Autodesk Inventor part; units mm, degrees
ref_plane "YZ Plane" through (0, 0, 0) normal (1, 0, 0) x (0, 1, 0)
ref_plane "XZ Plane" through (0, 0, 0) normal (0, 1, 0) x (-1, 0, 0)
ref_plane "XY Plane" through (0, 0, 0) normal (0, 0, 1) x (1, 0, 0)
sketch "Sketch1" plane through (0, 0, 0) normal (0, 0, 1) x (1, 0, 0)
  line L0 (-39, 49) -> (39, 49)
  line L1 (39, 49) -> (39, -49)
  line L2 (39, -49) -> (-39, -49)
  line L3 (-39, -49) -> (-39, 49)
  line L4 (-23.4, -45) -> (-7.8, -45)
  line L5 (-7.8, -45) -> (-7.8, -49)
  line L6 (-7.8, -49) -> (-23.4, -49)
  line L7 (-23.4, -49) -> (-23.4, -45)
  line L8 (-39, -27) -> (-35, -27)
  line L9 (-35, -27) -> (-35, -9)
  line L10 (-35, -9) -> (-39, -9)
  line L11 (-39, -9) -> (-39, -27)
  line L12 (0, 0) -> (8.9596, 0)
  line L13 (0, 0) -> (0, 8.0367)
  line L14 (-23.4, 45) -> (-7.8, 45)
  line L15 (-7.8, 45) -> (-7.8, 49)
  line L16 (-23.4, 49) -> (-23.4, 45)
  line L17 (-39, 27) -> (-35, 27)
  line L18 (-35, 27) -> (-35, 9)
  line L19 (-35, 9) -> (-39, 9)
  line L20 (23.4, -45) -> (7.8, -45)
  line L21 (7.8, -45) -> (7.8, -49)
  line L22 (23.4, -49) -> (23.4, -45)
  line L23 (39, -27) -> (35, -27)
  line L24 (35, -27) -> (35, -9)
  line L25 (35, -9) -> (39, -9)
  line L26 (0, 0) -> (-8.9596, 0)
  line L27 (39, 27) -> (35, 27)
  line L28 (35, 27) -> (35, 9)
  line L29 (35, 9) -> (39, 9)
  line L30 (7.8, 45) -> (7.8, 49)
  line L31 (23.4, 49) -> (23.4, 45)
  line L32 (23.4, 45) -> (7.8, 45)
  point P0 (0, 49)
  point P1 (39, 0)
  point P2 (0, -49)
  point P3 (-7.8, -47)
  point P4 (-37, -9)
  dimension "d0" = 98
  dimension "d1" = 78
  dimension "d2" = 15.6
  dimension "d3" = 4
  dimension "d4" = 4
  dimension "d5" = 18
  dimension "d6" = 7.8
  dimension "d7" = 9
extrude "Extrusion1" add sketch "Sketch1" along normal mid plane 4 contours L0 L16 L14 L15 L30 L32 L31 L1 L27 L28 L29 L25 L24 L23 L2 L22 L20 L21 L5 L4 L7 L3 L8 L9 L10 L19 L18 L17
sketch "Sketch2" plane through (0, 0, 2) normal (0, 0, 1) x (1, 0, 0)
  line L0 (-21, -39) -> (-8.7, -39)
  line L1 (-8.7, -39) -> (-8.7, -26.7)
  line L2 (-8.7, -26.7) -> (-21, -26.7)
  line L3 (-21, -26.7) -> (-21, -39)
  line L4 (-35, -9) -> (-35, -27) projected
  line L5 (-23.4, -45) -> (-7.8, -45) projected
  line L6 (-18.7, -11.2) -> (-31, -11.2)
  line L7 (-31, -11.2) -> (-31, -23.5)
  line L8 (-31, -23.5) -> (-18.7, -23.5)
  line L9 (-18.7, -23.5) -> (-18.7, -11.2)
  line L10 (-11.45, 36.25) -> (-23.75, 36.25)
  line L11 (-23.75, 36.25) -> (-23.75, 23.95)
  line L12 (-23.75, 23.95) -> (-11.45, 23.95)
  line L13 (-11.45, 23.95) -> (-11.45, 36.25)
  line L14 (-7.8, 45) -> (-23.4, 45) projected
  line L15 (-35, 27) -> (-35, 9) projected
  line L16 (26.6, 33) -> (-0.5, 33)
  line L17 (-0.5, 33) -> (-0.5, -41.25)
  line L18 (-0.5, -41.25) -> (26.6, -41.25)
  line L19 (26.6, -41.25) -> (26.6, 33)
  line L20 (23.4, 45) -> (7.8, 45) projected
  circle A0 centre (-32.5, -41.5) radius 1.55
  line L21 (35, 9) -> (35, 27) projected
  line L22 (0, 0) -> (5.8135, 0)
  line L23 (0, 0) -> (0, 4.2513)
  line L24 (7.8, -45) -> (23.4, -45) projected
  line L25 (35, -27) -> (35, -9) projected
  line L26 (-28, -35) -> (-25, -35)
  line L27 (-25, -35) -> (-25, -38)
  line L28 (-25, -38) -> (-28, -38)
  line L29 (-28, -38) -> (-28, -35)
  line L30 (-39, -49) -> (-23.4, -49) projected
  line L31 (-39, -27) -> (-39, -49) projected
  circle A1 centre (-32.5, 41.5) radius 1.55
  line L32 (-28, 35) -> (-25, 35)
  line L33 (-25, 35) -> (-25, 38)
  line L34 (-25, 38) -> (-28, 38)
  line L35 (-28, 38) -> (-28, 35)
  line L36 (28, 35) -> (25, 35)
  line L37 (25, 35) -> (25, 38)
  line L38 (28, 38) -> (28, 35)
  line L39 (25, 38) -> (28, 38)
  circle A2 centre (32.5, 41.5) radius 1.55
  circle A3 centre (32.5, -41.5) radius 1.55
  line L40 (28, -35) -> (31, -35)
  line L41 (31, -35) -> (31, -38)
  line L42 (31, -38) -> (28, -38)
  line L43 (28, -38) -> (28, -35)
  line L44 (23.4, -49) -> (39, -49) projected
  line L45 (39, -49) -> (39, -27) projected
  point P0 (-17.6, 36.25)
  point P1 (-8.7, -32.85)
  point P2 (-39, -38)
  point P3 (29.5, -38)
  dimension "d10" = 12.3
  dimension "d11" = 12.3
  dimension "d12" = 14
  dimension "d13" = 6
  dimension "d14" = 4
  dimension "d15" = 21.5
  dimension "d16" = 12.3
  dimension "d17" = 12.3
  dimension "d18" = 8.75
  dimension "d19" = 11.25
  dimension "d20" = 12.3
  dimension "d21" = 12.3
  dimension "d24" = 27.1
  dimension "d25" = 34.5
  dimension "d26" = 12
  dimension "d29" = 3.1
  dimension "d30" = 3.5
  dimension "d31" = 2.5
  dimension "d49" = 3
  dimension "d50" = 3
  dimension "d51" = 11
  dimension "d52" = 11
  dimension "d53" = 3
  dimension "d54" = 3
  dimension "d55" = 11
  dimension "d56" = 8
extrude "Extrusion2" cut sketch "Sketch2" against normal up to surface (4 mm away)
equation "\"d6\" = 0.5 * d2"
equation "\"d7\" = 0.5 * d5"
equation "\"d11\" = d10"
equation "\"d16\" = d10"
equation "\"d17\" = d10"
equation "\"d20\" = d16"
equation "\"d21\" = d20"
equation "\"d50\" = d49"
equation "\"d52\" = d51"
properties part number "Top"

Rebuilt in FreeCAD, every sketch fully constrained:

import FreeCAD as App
import Part
import Sketcher
from FreeCAD import Vector

doc = App.newDocument("Part")
params = doc.addObject("Spreadsheet::Sheet", "Params")
for row, (alias, value) in enumerate([
    ("sketch1_width", "4 mm"),
    ("sketch1_height", "18 mm"),
    ("sketch1_width2", "15.6 mm"),
    ("pad1_length", "4 mm"),
    ("sketch2_diameter", "3.1 mm"),
    ("sketch2_width", "3 mm"),
    ("sketch2_width2", "12.3 mm"),
    ("sketch2_width3", "27.1 mm"),
    ("sketch2_height", "74.25 mm"),
    ("pocket1_length", "4 mm"),
], start=1):
    params.set(f"A{row}", alias)
    params.set(f"B{row}", "=" + value)
    params.setAlias(f"B{row}", alias)

body = doc.addObject("PartDesign::Body", "Body")

# Sketch on XY plane
sketch1 = body.newObject("Sketcher::SketchObject", "Sketch")
sketch1.AttachmentSupport = (doc.getObject("XY_Plane"), [""])
sketch1.MapMode = "FlatFace"
sketch1.addGeometry(Part.LineSegment(Vector(-23.4, 49, 0), Vector(-39, 49, 0)), False)
sketch1.addGeometry(Part.LineSegment(Vector(-39, 49, 0), Vector(-39, 27, 0)), False)
sketch1.addGeometry(Part.LineSegment(Vector(-39, 27, 0), Vector(-35, 27, 0)), False)
sketch1.addGeometry(Part.LineSegment(Vector(-35, 27, 0), Vector(-35, 9, 0)), False)
sketch1.addGeometry(Part.LineSegment(Vector(-35, 9, 0), Vector(-39, 9, 0)), False)
sketch1.addGeometry(Part.LineSegment(Vector(-39, 9, 0), Vector(-39, -9, 0)), False)
sketch1.addGeometry(Part.LineSegment(Vector(-39, -9, 0), Vector(-35, -9, 0)), False)
sketch1.addGeometry(Part.LineSegment(Vector(-35, -9, 0), Vector(-35, -27, 0)), False)
sketch1.addGeometry(Part.LineSegment(Vector(-35, -27, 0), Vector(-39, -27, 0)), False)
sketch1.addGeometry(Part.LineSegment(Vector(-39, -27, 0), Vector(-39, -49, 0)), False)
sketch1.addGeometry(Part.LineSegment(Vector(-39, -49, 0), Vector(-23.4, -49, 0)), False)
sketch1.addGeometry(Part.LineSegment(Vector(-23.4, -49, 0), Vector(-23.4, -45, 0)), False)
sketch1.addGeometry(Part.LineSegment(Vector(-23.4, -45, 0), Vector(-7.8, -45, 0)), False)
sketch1.addGeometry(Part.LineSegment(Vector(-7.8, -45, 0), Vector(-7.8, -49, 0)), False)
sketch1.addGeometry(Part.LineSegment(Vector(-7.8, -49, 0), Vector(7.8, -49, 0)), False)
sketch1.addGeometry(Part.LineSegment(Vector(7.8, -49, 0), Vector(7.8, -45, 0)), False)
sketch1.addGeometry(Part.LineSegment(Vector(7.8, -45, 0), Vector(23.4, -45, 0)), False)
sketch1.addGeometry(Part.LineSegment(Vector(23.4, -45, 0), Vector(23.4, -49, 0)), False)
sketch1.addGeometry(Part.LineSegment(Vector(23.4, -49, 0), Vector(39, -49, 0)), False)
sketch1.addGeometry(Part.LineSegment(Vector(39, -49, 0), Vector(39, -27, 0)), False)
sketch1.addGeometry(Part.LineSegment(Vector(39, -27, 0), Vector(35, -27, 0)), False)
sketch1.addGeometry(Part.LineSegment(Vector(35, -27, 0), Vector(35, -9, 0)), False)
sketch1.addGeometry(Part.LineSegment(Vector(35, -9, 0), Vector(39, -9, 0)), False)
sketch1.addGeometry(Part.LineSegment(Vector(39, -9, 0), Vector(39, 9, 0)), False)
sketch1.addGeometry(Part.LineSegment(Vector(39, 9, 0), Vector(35, 9, 0)), False)
sketch1.addGeometry(Part.LineSegment(Vector(35, 9, 0), Vector(35, 27, 0)), False)
sketch1.addGeometry(Part.LineSegment(Vector(35, 27, 0), Vector(39, 27, 0)), False)
sketch1.addGeometry(Part.LineSegment(Vector(39, 27, 0), Vector(39, 49, 0)), False)
sketch1.addGeometry(Part.LineSegment(Vector(39, 49, 0), Vector(23.4, 49, 0)), False)
sketch1.addGeometry(Part.LineSegment(Vector(23.4, 49, 0), Vector(23.4, 45, 0)), False)
sketch1.addGeometry(Part.LineSegment(Vector(23.4, 45, 0), Vector(7.8, 45, 0)), False)
sketch1.addGeometry(Part.LineSegment(Vector(7.8, 45, 0), Vector(7.8, 49, 0)), False)
sketch1.addGeometry(Part.LineSegment(Vector(7.8, 49, 0), Vector(-7.8, 49, 0)), False)
sketch1.addGeometry(Part.LineSegment(Vector(-7.8, 49, 0), Vector(-7.8, 45, 0)), False)
sketch1.addGeometry(Part.LineSegment(Vector(-7.8, 45, 0), Vector(-23.4, 45, 0)), False)
sketch1.addGeometry(Part.LineSegment(Vector(-23.4, 45, 0), Vector(-23.4, 49, 0)), False)
sketch1.addConstraint(Sketcher.Constraint("Coincident", 0, 2, 1, 1))
sketch1.addConstraint(Sketcher.Constraint("Coincident", 1, 2, 2, 1))
sketch1.addConstraint(Sketcher.Constraint("Coincident", 2, 2, 3, 1))
sketch1.addConstraint(Sketcher.Constraint("Coincident", 3, 2, 4, 1))
sketch1.addConstraint(Sketcher.Constraint("Coincident", 4, 2, 5, 1))
sketch1.addConstraint(Sketcher.Constraint("Coincident", 5, 2, 6, 1))
sketch1.addConstraint(Sketcher.Constraint("Coincident", 6, 2, 7, 1))
sketch1.addConstraint(Sketcher.Constraint("Coincident", 7, 2, 8, 1))
sketch1.addConstraint(Sketcher.Constraint("Coincident", 8, 2, 9, 1))
sketch1.addConstraint(Sketcher.Constraint("Coincident", 9, 2, 10, 1))
sketch1.addConstraint(Sketcher.Constraint("Coincident", 10, 2, 11, 1))
sketch1.addConstraint(Sketcher.Constraint("Coincident", 11, 2, 12, 1))
sketch1.addConstraint(Sketcher.Constraint("Coincident", 12, 2, 13, 1))
sketch1.addConstraint(Sketcher.Constraint("Coincident", 13, 2, 14, 1))
sketch1.addConstraint(Sketcher.Constraint("Coincident", 14, 2, 15, 1))
sketch1.addConstraint(Sketcher.Constraint("Coincident", 15, 2, 16, 1))
sketch1.addConstraint(Sketcher.Constraint("Coincident", 16, 2, 17, 1))
sketch1.addConstraint(Sketcher.Constraint("Coincident", 17, 2, 18, 1))
sketch1.addConstraint(Sketcher.Constraint("Coincident", 18, 2, 19, 1))
sketch1.addConstraint(Sketcher.Constraint("Coincident", 19, 2, 20, 1))
sketch1.addConstraint(Sketcher.Constraint("Coincident", 20, 2, 21, 1))
sketch1.addConstraint(Sketcher.Constraint("Coincident", 21, 2, 22, 1))
sketch1.addConstraint(Sketcher.Constraint("Coincident", 22, 2, 23, 1))
sketch1.addConstraint(Sketcher.Constraint("Coincident", 23, 2, 24, 1))
sketch1.addConstraint(Sketcher.Constraint("Coincident", 24, 2, 25, 1))
sketch1.addConstraint(Sketcher.Constraint("Coincident", 25, 2, 26, 1))
sketch1.addConstraint(Sketcher.Constraint("Coincident", 26, 2, 27, 1))
sketch1.addConstraint(Sketcher.Constraint("Coincident", 27, 2, 28, 1))
sketch1.addConstraint(Sketcher.Constraint("Coincident", 28, 2, 29, 1))
sketch1.addConstraint(Sketcher.Constraint("Coincident", 29, 2, 30, 1))
sketch1.addConstraint(Sketcher.Constraint("Coincident", 30, 2, 31, 1))
sketch1.addConstraint(Sketcher.Constraint("Coincident", 31, 2, 32, 1))
sketch1.addConstraint(Sketcher.Constraint("Coincident", 32, 2, 33, 1))
sketch1.addConstraint(Sketcher.Constraint("Coincident", 33, 2, 34, 1))
sketch1.addConstraint(Sketcher.Constraint("Coincident", 34, 2, 35, 1))
sketch1.addConstraint(Sketcher.Constraint("Coincident", 35, 2, 0, 1))
sketch1.addConstraint(Sketcher.Constraint("Horizontal", 0))
sketch1.addConstraint(Sketcher.Constraint("Vertical", 1))
sketch1.addConstraint(Sketcher.Constraint("Horizontal", 2))
sketch1.addConstraint(Sketcher.Constraint("Vertical", 3))
sketch1.addConstraint(Sketcher.Constraint("Horizontal", 4))
sketch1.addConstraint(Sketcher.Constraint("Vertical", 5))
sketch1.addConstraint(Sketcher.Constraint("Horizontal", 6))
sketch1.addConstraint(Sketcher.Constraint("Vertical", 7))
sketch1.addConstraint(Sketcher.Constraint("Horizontal", 8))
sketch1.addConstraint(Sketcher.Constraint("Vertical", 9))
sketch1.addConstraint(Sketcher.Constraint("Horizontal", 10))
sketch1.addConstraint(Sketcher.Constraint("Vertical", 11))
sketch1.addConstraint(Sketcher.Constraint("Horizontal", 12))
sketch1.addConstraint(Sketcher.Constraint("Vertical", 13))
sketch1.addConstraint(Sketcher.Constraint("Horizontal", 14))
sketch1.addConstraint(Sketcher.Constraint("Vertical", 15))
sketch1.addConstraint(Sketcher.Constraint("Horizontal", 16))
sketch1.addConstraint(Sketcher.Constraint("Vertical", 17))
sketch1.addConstraint(Sketcher.Constraint("Horizontal", 18))
sketch1.addConstraint(Sketcher.Constraint("Vertical", 19))
sketch1.addConstraint(Sketcher.Constraint("Horizontal", 20))
sketch1.addConstraint(Sketcher.Constraint("Vertical", 21))
sketch1.addConstraint(Sketcher.Constraint("Horizontal", 22))
sketch1.addConstraint(Sketcher.Constraint("Vertical", 23))
sketch1.addConstraint(Sketcher.Constraint("Horizontal", 24))
sketch1.addConstraint(Sketcher.Constraint("Vertical", 25))
sketch1.addConstraint(Sketcher.Constraint("Horizontal", 26))
sketch1.addConstraint(Sketcher.Constraint("Vertical", 27))
sketch1.addConstraint(Sketcher.Constraint("Horizontal", 28))
sketch1.addConstraint(Sketcher.Constraint("Vertical", 29))
sketch1.addConstraint(Sketcher.Constraint("Horizontal", 30))
sketch1.addConstraint(Sketcher.Constraint("Vertical", 31))
sketch1.addConstraint(Sketcher.Constraint("Horizontal", 32))
sketch1.addConstraint(Sketcher.Constraint("Vertical", 33))
sketch1.addConstraint(Sketcher.Constraint("Horizontal", 34))
sketch1.addConstraint(Sketcher.Constraint("Vertical", 35))
sketch1.addConstraint(Sketcher.Constraint("Symmetric", 0, 2, 18, 2, -1, 1))
sketch1.addConstraint(Sketcher.Constraint("Symmetric", 2, 2, 20, 2, -1, 1))
sketch1.addConstraint(Sketcher.Constraint("Symmetric", 4, 2, 22, 2, -1, 1))
sketch1.addConstraint(Sketcher.Constraint("Symmetric", 6, 2, 24, 2, -1, 1))
sketch1.addConstraint(Sketcher.Constraint("Symmetric", 8, 2, 26, 2, -1, 1))
sketch1.addConstraint(Sketcher.Constraint("Symmetric", 10, 2, 28, 2, -1, 1))
sketch1.addConstraint(Sketcher.Constraint("Symmetric", 12, 2, 30, 2, -1, 1))
sketch1.addConstraint(Sketcher.Constraint("Symmetric", 14, 2, 32, 2, -1, 1))
sketch1.addConstraint(Sketcher.Constraint("Symmetric", 16, 2, 34, 2, -1, 1))
sketch1.addConstraint(Sketcher.Constraint("Symmetric", 12, 2, 15, 2, -2))
sketch1.addConstraint(Sketcher.Constraint("Symmetric", 10, 2, 17, 2, -2))
sketch1.addConstraint(Sketcher.Constraint("Symmetric", 8, 2, 19, 2, -2))
sketch1.addConstraint(Sketcher.Constraint("Symmetric", 6, 2, 21, 2, -2))
sketch1.addConstraint(Sketcher.Constraint("Horizontal", 10, 2, 13, 2))
sketch1.addConstraint(Sketcher.Constraint("Vertical", 1, 2, 4, 2))
sketch1.addConstraint(Sketcher.Constraint("Equal", 10, 12))
sketch1.addConstraint(Sketcher.Constraint("Equal", 12, 14))
sketch1.addConstraint(Sketcher.Constraint("Equal", 3, 5))
sketch1.addConstraint(Sketcher.Constraint("Equal", 26, 11))
sketch1.addConstraint(Sketcher.Constraint("DistanceX", 2, 1, 2, 2, 4.0))
sketch1.addConstraint(Sketcher.Constraint("DistanceY", 3, 2, 3, 1, 18.0))
sketch1.addConstraint(Sketcher.Constraint("DistanceX", 0, 2, 0, 1, 15.6))
sketch1.addConstraint(Sketcher.Constraint("DistanceY", 11, 2, 7, 2, 18.0))
sketch1.setExpression("Constraints[91]", "Params.sketch1_width")
sketch1.setExpression("Constraints[92]", "Params.sketch1_height")
sketch1.setExpression("Constraints[93]", "Params.sketch1_width2")
pad1 = body.newObject("PartDesign::Pad", "Pad")
pad1.Profile = sketch1
pad1.setExpression("Length", "Params.pad1_length")
pad1.Midplane = True

# Sketch on XY plane
sketch2 = body.newObject("Sketcher::SketchObject", "Sketch001")
sketch2.AttachmentSupport = (doc.getObject("XY_Plane"), [""])
sketch2.MapMode = "FlatFace"
sketch2.AttachmentOffset = App.Placement(Vector(0, 0, 2), App.Rotation())
sketch2.addGeometry(Part.LineSegment(Vector(-21, -26.7, 0), Vector(-21, -39, 0)), False)
sketch2.addGeometry(Part.LineSegment(Vector(-21, -39, 0), Vector(-8.7, -39, 0)), False)
sketch2.addGeometry(Part.LineSegment(Vector(-8.7, -39, 0), Vector(-8.7, -26.7, 0)), False)
sketch2.addGeometry(Part.LineSegment(Vector(-8.7, -26.7, 0), Vector(-21, -26.7, 0)), False)
sketch2.addGeometry(Part.LineSegment(Vector(-18.7, -23.5, 0), Vector(-18.7, -11.2, 0)), False)
sketch2.addGeometry(Part.LineSegment(Vector(-18.7, -11.2, 0), Vector(-31, -11.2, 0)), False)
sketch2.addGeometry(Part.LineSegment(Vector(-31, -11.2, 0), Vector(-31, -23.5, 0)), False)
sketch2.addGeometry(Part.LineSegment(Vector(-31, -23.5, 0), Vector(-18.7, -23.5, 0)), False)
sketch2.addGeometry(Part.LineSegment(Vector(-11.4, 23.9, 0), Vector(-11.4, 36.2, 0)), False)
sketch2.addGeometry(Part.LineSegment(Vector(-11.4, 36.2, 0), Vector(-23.8, 36.2, 0)), False)
sketch2.addGeometry(Part.LineSegment(Vector(-23.8, 36.2, 0), Vector(-23.8, 23.9, 0)), False)
sketch2.addGeometry(Part.LineSegment(Vector(-23.8, 23.9, 0), Vector(-11.4, 23.9, 0)), False)
sketch2.addGeometry(Part.LineSegment(Vector(26.6, -41.2, 0), Vector(26.6, 33, 0)), False)
sketch2.addGeometry(Part.LineSegment(Vector(26.6, 33, 0), Vector(-0.5, 33, 0)), False)
sketch2.addGeometry(Part.LineSegment(Vector(-0.5, 33, 0), Vector(-0.5, -41.2, 0)), False)
sketch2.addGeometry(Part.LineSegment(Vector(-0.5, -41.2, 0), Vector(26.6, -41.2, 0)), False)
sketch2.addGeometry(Part.Circle(Vector(-32.5, -41.5, 0), Vector(0, 0, 1), 1.6), False)
sketch2.addGeometry(Part.LineSegment(Vector(-25, -35, 0), Vector(-28, -35, 0)), False)
sketch2.addGeometry(Part.LineSegment(Vector(-28, -35, 0), Vector(-28, -38, 0)), False)
sketch2.addGeometry(Part.LineSegment(Vector(-28, -38, 0), Vector(-25, -38, 0)), False)
sketch2.addGeometry(Part.LineSegment(Vector(-25, -38, 0), Vector(-25, -35, 0)), False)
sketch2.addGeometry(Part.Circle(Vector(-32.5, 41.5, 0), Vector(0, 0, 1), 1.6), False)
sketch2.addGeometry(Part.LineSegment(Vector(-28, 38, 0), Vector(-28, 35, 0)), False)
sketch2.addGeometry(Part.LineSegment(Vector(-28, 35, 0), Vector(-25, 35, 0)), False)
sketch2.addGeometry(Part.LineSegment(Vector(-25, 35, 0), Vector(-25, 38, 0)), False)
sketch2.addGeometry(Part.LineSegment(Vector(-25, 38, 0), Vector(-28, 38, 0)), False)
sketch2.addGeometry(Part.LineSegment(Vector(25, 35, 0), Vector(28, 35, 0)), False)
sketch2.addGeometry(Part.LineSegment(Vector(28, 35, 0), Vector(28, 38, 0)), False)
sketch2.addGeometry(Part.LineSegment(Vector(28, 38, 0), Vector(25, 38, 0)), False)
sketch2.addGeometry(Part.LineSegment(Vector(25, 38, 0), Vector(25, 35, 0)), False)
sketch2.addGeometry(Part.Circle(Vector(32.5, 41.5, 0), Vector(0, 0, 1), 1.6), False)
sketch2.addGeometry(Part.Circle(Vector(32.5, -41.5, 0), Vector(0, 0, 1), 1.6), False)
sketch2.addGeometry(Part.LineSegment(Vector(31, -35, 0), Vector(28, -35, 0)), False)
sketch2.addGeometry(Part.LineSegment(Vector(28, -35, 0), Vector(28, -38, 0)), False)
sketch2.addGeometry(Part.LineSegment(Vector(28, -38, 0), Vector(31, -38, 0)), False)
sketch2.addGeometry(Part.LineSegment(Vector(31, -38, 0), Vector(31, -35, 0)), False)
sketch2.addConstraint(Sketcher.Constraint("Coincident", 0, 2, 1, 1))
sketch2.addConstraint(Sketcher.Constraint("Coincident", 1, 2, 2, 1))
sketch2.addConstraint(Sketcher.Constraint("Coincident", 2, 2, 3, 1))
sketch2.addConstraint(Sketcher.Constraint("Coincident", 3, 2, 0, 1))
sketch2.addConstraint(Sketcher.Constraint("Coincident", 4, 2, 5, 1))
sketch2.addConstraint(Sketcher.Constraint("Coincident", 5, 2, 6, 1))
sketch2.addConstraint(Sketcher.Constraint("Coincident", 6, 2, 7, 1))
sketch2.addConstraint(Sketcher.Constraint("Coincident", 7, 2, 4, 1))
sketch2.addConstraint(Sketcher.Constraint("Coincident", 8, 2, 9, 1))
sketch2.addConstraint(Sketcher.Constraint("Coincident", 9, 2, 10, 1))
sketch2.addConstraint(Sketcher.Constraint("Coincident", 10, 2, 11, 1))
sketch2.addConstraint(Sketcher.Constraint("Coincident", 11, 2, 8, 1))
sketch2.addConstraint(Sketcher.Constraint("Coincident", 12, 2, 13, 1))
sketch2.addConstraint(Sketcher.Constraint("Coincident", 13, 2, 14, 1))
sketch2.addConstraint(Sketcher.Constraint("Coincident", 14, 2, 15, 1))
sketch2.addConstraint(Sketcher.Constraint("Coincident", 15, 2, 12, 1))
sketch2.addConstraint(Sketcher.Constraint("Coincident", 17, 2, 18, 1))
sketch2.addConstraint(Sketcher.Constraint("Coincident", 18, 2, 19, 1))
sketch2.addConstraint(Sketcher.Constraint("Coincident", 19, 2, 20, 1))
sketch2.addConstraint(Sketcher.Constraint("Coincident", 20, 2, 17, 1))
sketch2.addConstraint(Sketcher.Constraint("Coincident", 22, 2, 23, 1))
sketch2.addConstraint(Sketcher.Constraint("Coincident", 23, 2, 24, 1))
sketch2.addConstraint(Sketcher.Constraint("Coincident", 24, 2, 25, 1))
sketch2.addConstraint(Sketcher.Constraint("Coincident", 25, 2, 22, 1))
sketch2.addConstraint(Sketcher.Constraint("Coincident", 26, 2, 27, 1))
sketch2.addConstraint(Sketcher.Constraint("Coincident", 27, 2, 28, 1))
sketch2.addConstraint(Sketcher.Constraint("Coincident", 28, 2, 29, 1))
sketch2.addConstraint(Sketcher.Constraint("Coincident", 29, 2, 26, 1))
sketch2.addConstraint(Sketcher.Constraint("Coincident", 32, 2, 33, 1))
sketch2.addConstraint(Sketcher.Constraint("Coincident", 33, 2, 34, 1))
sketch2.addConstraint(Sketcher.Constraint("Coincident", 34, 2, 35, 1))
sketch2.addConstraint(Sketcher.Constraint("Coincident", 35, 2, 32, 1))
sketch2.addConstraint(Sketcher.Constraint("Vertical", 0))
sketch2.addConstraint(Sketcher.Constraint("Horizontal", 1))
sketch2.addConstraint(Sketcher.Constraint("Vertical", 2))
sketch2.addConstraint(Sketcher.Constraint("Horizontal", 3))
sketch2.addConstraint(Sketcher.Constraint("Vertical", 4))
sketch2.addConstraint(Sketcher.Constraint("Horizontal", 5))
sketch2.addConstraint(Sketcher.Constraint("Vertical", 6))
sketch2.addConstraint(Sketcher.Constraint("Horizontal", 7))
sketch2.addConstraint(Sketcher.Constraint("Vertical", 8))
sketch2.addConstraint(Sketcher.Constraint("Horizontal", 9))
sketch2.addConstraint(Sketcher.Constraint("Vertical", 10))
sketch2.addConstraint(Sketcher.Constraint("Horizontal", 11))
sketch2.addConstraint(Sketcher.Constraint("Vertical", 12))
sketch2.addConstraint(Sketcher.Constraint("Horizontal", 13))
sketch2.addConstraint(Sketcher.Constraint("Vertical", 14))
sketch2.addConstraint(Sketcher.Constraint("Horizontal", 15))
sketch2.addConstraint(Sketcher.Constraint("Horizontal", 17))
sketch2.addConstraint(Sketcher.Constraint("Vertical", 18))
sketch2.addConstraint(Sketcher.Constraint("Horizontal", 19))
sketch2.addConstraint(Sketcher.Constraint("Vertical", 20))
sketch2.addConstraint(Sketcher.Constraint("Vertical", 22))
sketch2.addConstraint(Sketcher.Constraint("Horizontal", 23))
sketch2.addConstraint(Sketcher.Constraint("Vertical", 24))
sketch2.addConstraint(Sketcher.Constraint("Horizontal", 25))
sketch2.addConstraint(Sketcher.Constraint("Horizontal", 26))
sketch2.addConstraint(Sketcher.Constraint("Vertical", 27))
sketch2.addConstraint(Sketcher.Constraint("Horizontal", 28))
sketch2.addConstraint(Sketcher.Constraint("Vertical", 29))
sketch2.addConstraint(Sketcher.Constraint("Horizontal", 32))
sketch2.addConstraint(Sketcher.Constraint("Vertical", 33))
sketch2.addConstraint(Sketcher.Constraint("Horizontal", 34))
sketch2.addConstraint(Sketcher.Constraint("Vertical", 35))
sketch2.addConstraint(Sketcher.Constraint("Equal", 16, 21))
sketch2.addConstraint(Sketcher.Constraint("Equal", 21, 30))
sketch2.addConstraint(Sketcher.Constraint("Equal", 30, 31))
sketch2.addConstraint(Sketcher.Constraint("Symmetric", 16, 3, 30, 3, -1, 1))
sketch2.addConstraint(Sketcher.Constraint("Symmetric", 21, 3, 31, 3, -1, 1))
sketch2.addConstraint(Sketcher.Constraint("Symmetric", 17, 2, 26, 2, -1, 1))
sketch2.addConstraint(Sketcher.Constraint("Symmetric", 19, 2, 28, 2, -1, 1))
sketch2.addConstraint(Sketcher.Constraint("Symmetric", 22, 2, 32, 2, -1, 1))
sketch2.addConstraint(Sketcher.Constraint("Symmetric", 21, 3, 30, 3, -2))
sketch2.addConstraint(Sketcher.Constraint("Symmetric", 22, 2, 26, 2, -2))
sketch2.addConstraint(Sketcher.Constraint("Symmetric", 24, 2, 28, 2, -2))
sketch2.addConstraint(Sketcher.Constraint("Horizontal", 19, 2, 33, 2))
sketch2.addConstraint(Sketcher.Constraint("Equal", 3, 5))
sketch2.addConstraint(Sketcher.Constraint("Equal", 7, 9))
sketch2.addConstraint(Sketcher.Constraint("Equal", 28, 32))
sketch2.addConstraint(Sketcher.Constraint("Equal", 11, 0))
sketch2.addConstraint(Sketcher.Constraint("Equal", 2, 4))
sketch2.addConstraint(Sketcher.Constraint("Equal", 6, 8))
sketch2.addConstraint(Sketcher.Constraint("Equal", 34, 18))
sketch2.addConstraint(Sketcher.Constraint("Diameter", 16, 3.1))
sketch2.addConstraint(Sketcher.Constraint("DistanceX", 17, 2, 17, 1, 3.0))
sketch2.addConstraint(Sketcher.Constraint("DistanceX", 1, 1, 1, 2, 12.3))
sketch2.addConstraint(Sketcher.Constraint("DistanceX", 13, 2, 13, 1, 27.1))
sketch2.addConstraint(Sketcher.Constraint("DistanceY", 0, 2, 17, 2, 4.0))
sketch2.addConstraint(Sketcher.Constraint("DistanceX", 6, 2, 17, 2, 3.0))
sketch2.addConstraint(Sketcher.Constraint("DistanceX", 19, 2, 0, 2, 4.0))
sketch2.addConstraint(Sketcher.Constraint("DistanceY", 16, 3, 0, 2, 2.5))
sketch2.addConstraint(Sketcher.Constraint("DistanceX", 21, 3, 9, 2, 8.75))
sketch2.addConstraint(Sketcher.Constraint("DistanceX", 0, 2, -1, 1, 21.0))
sketch2.addConstraint(Sketcher.Constraint("DistanceY", 0, 2, -1, 1, 39.0))
sketch2.addConstraint(Sketcher.Constraint("DistanceY", -1, 1, 12, 2, 33.0))
sketch2.addConstraint(Sketcher.Constraint("DistanceX", 21, 3, 30, 3, 65.0))
sketch2.addConstraint(Sketcher.Constraint("DistanceY", 16, 3, 6, 2, 18.0))
sketch2.addConstraint(Sketcher.Constraint("DistanceY", 12, 1, 12, 2, 74.25))
sketch2.addConstraint(Sketcher.Constraint("DistanceX", -1, 1, 12, 2, 26.6))
sketch2.addConstraint(Sketcher.Constraint("DistanceY", -1, 1, 8, 2, 36.25))
sketch2.setExpression("Constraints[83]", "Params.sketch2_diameter")
sketch2.setExpression("Constraints[84]", "Params.sketch2_width")
sketch2.setExpression("Constraints[85]", "Params.sketch2_width2")
sketch2.setExpression("Constraints[86]", "Params.sketch2_width3")
sketch2.setExpression("Constraints[97]", "Params.sketch2_height")
pocket1 = body.newObject("PartDesign::Pocket", "Pocket")
pocket1.Profile = sketch2
pocket1.setExpression("Length", "Params.pocket1_length")

doc.recompute()
